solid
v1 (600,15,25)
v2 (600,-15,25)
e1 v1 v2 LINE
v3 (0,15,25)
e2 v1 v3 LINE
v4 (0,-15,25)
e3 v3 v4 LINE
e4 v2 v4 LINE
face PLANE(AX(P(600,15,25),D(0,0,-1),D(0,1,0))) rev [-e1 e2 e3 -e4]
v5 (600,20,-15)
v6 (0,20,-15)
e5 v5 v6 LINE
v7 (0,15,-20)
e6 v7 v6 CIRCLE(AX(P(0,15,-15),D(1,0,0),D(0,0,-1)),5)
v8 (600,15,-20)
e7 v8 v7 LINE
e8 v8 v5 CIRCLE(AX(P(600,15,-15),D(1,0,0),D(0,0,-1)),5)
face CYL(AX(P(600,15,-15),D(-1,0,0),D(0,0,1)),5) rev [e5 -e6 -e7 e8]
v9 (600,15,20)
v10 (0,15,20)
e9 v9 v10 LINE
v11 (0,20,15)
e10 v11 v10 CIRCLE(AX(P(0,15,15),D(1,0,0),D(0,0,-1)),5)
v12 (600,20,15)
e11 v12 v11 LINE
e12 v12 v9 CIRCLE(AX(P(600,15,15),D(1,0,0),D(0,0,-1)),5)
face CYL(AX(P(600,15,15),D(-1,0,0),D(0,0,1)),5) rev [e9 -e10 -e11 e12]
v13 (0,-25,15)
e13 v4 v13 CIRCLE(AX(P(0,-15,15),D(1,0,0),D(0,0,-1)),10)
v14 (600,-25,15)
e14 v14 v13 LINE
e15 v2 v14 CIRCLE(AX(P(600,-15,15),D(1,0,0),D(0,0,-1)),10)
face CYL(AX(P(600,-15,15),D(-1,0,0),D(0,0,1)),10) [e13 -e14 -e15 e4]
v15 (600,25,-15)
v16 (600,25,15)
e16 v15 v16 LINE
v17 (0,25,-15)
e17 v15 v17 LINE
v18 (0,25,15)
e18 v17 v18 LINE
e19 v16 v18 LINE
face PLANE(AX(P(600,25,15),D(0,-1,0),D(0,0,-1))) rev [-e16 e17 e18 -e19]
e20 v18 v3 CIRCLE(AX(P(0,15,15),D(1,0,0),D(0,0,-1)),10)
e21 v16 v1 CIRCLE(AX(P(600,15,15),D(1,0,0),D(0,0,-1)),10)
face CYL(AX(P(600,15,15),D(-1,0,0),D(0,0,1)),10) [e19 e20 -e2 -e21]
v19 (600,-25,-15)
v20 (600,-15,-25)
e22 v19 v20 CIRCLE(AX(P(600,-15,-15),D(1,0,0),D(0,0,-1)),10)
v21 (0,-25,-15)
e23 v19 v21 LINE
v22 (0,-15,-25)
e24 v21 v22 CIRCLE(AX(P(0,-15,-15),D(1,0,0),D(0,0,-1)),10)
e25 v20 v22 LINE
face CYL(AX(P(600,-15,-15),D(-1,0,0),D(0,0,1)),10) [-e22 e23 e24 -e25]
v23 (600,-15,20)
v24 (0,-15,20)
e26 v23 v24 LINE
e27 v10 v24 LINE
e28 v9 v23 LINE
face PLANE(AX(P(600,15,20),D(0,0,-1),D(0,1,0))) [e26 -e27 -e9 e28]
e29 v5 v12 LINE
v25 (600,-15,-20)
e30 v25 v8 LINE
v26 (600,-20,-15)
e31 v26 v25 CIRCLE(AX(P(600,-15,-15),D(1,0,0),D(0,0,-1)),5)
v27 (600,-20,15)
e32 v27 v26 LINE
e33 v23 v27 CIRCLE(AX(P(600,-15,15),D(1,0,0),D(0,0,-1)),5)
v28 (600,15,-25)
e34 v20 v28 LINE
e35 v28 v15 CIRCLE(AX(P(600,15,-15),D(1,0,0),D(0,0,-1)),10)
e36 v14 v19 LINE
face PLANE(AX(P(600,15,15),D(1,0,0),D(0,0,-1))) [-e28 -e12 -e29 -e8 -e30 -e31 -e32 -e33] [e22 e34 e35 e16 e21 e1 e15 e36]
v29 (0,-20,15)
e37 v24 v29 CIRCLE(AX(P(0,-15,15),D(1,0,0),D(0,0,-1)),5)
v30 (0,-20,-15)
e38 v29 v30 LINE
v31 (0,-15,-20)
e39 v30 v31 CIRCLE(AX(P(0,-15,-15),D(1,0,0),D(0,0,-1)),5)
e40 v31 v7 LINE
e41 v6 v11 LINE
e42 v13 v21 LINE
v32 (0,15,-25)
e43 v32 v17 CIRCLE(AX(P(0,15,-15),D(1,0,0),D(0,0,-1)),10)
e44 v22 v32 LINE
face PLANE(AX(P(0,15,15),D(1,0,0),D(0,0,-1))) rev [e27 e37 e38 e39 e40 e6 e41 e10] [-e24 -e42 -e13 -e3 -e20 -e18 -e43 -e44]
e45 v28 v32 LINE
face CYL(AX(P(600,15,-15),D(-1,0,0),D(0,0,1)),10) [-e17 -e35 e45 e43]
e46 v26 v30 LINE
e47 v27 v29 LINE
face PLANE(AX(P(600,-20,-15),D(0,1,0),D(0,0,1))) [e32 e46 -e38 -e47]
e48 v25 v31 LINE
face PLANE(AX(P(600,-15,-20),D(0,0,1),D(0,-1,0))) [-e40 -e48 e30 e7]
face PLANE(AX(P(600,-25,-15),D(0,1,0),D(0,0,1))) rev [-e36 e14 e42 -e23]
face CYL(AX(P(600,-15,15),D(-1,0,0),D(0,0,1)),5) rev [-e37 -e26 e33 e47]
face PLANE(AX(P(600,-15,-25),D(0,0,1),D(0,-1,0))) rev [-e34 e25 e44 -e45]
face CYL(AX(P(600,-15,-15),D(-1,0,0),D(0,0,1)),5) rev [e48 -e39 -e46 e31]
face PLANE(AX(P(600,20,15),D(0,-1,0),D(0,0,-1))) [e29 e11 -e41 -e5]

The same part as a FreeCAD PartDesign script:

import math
import FreeCAD as App
import Part
import Sketcher
from FreeCAD import Vector

doc = App.newDocument("Part")
body = doc.addObject("PartDesign::Body", "Body")

sketch1 = doc.addObject("Sketcher::SketchObject", "Sketch")
body.addObject(sketch1)
sketch1.AttachmentSupport = (doc.YZ_Plane, [""])
sketch1.MapMode = "FlatFace"
sketch1.addGeometry(Part.LineSegment(Vector(-15, -25, 0), Vector(15, -25, 0)), False)
sketch1.addGeometry(Part.ArcOfCircle(Part.Circle(Vector(15, -15, 0), Vector(0, 0, 1), 10), math.radians(-90), math.radians(0)), False)
sketch1.addGeometry(Part.LineSegment(Vector(25, -15, 0), Vector(25, 15, 0)), False)
sketch1.addGeometry(Part.ArcOfCircle(Part.Circle(Vector(15, 15, 0), Vector(0, 0, 1), 10), math.radians(0), math.radians(90)), False)
sketch1.addGeometry(Part.LineSegment(Vector(15, 25, 0), Vector(-15, 25, 0)), False)
sketch1.addGeometry(Part.ArcOfCircle(Part.Circle(Vector(-15, 15, 0), Vector(0, 0, 1), 10), math.radians(90), math.radians(180)), False)
sketch1.addGeometry(Part.LineSegment(Vector(-25, 15, 0), Vector(-25, -15, 0)), False)
sketch1.addGeometry(Part.ArcOfCircle(Part.Circle(Vector(-15, -15, 0), Vector(0, 0, 1), 10), math.radians(180), math.radians(270)), False)
sketch1.addGeometry(Part.LineSegment(Vector(15, -20, 0), Vector(-15, -20, 0)), False)
sketch1.addGeometry(Part.ArcOfCircle(Part.Circle(Vector(-15, -15, 0), Vector(0, 0, 1), 5), math.radians(180), math.radians(270)), False)
sketch1.addGeometry(Part.LineSegment(Vector(-20, -15, 0), Vector(-20, 15, 0)), False)
sketch1.addGeometry(Part.ArcOfCircle(Part.Circle(Vector(-15, 15, 0), Vector(0, 0, 1), 5), math.radians(90), math.radians(180)), False)
sketch1.addGeometry(Part.LineSegment(Vector(-15, 20, 0), Vector(15, 20, 0)), False)
sketch1.addGeometry(Part.ArcOfCircle(Part.Circle(Vector(15, 15, 0), Vector(0, 0, 1), 5), math.radians(0), math.radians(90)), False)
sketch1.addGeometry(Part.LineSegment(Vector(20, 15, 0), Vector(20, -15, 0)), False)
sketch1.addGeometry(Part.ArcOfCircle(Part.Circle(Vector(15, -15, 0), Vector(0, 0, 1), 5), math.radians(-90), math.radians(0)), False)
sketch1.addConstraint(Sketcher.Constraint("Tangent", 0, 2, 1, 1))
sketch1.addConstraint(Sketcher.Constraint("Tangent", 1, 2, 2, 1))
sketch1.addConstraint(Sketcher.Constraint("Tangent", 2, 2, 3, 1))
sketch1.addConstraint(Sketcher.Constraint("Tangent", 3, 2, 4, 1))
sketch1.addConstraint(Sketcher.Constraint("Tangent", 4, 2, 5, 1))
sketch1.addConstraint(Sketcher.Constraint("Tangent", 5, 2, 6, 1))
sketch1.addConstraint(Sketcher.Constraint("Tangent", 6, 2, 7, 1))
sketch1.addConstraint(Sketcher.Constraint("Tangent", 7, 2, 0, 1))
sketch1.addConstraint(Sketcher.Constraint("Tangent", 8, 2, 9, 2))
sketch1.addConstraint(Sketcher.Constraint("Tangent", 9, 1, 10, 1))
sketch1.addConstraint(Sketcher.Constraint("Tangent", 10, 2, 11, 2))
sketch1.addConstraint(Sketcher.Constraint("Tangent", 11, 1, 12, 1))
sketch1.addConstraint(Sketcher.Constraint("Tangent", 12, 2, 13, 2))
sketch1.addConstraint(Sketcher.Constraint("Tangent", 13, 1, 14, 1))
sketch1.addConstraint(Sketcher.Constraint("Tangent", 14, 2, 15, 2))
sketch1.addConstraint(Sketcher.Constraint("Tangent", 15, 1, 8, 1))
sketch1.addConstraint(Sketcher.Constraint("Horizontal", 0))
sketch1.addConstraint(Sketcher.Constraint("Vertical", 2))
sketch1.addConstraint(Sketcher.Constraint("Horizontal", 4))
sketch1.addConstraint(Sketcher.Constraint("Vertical", 6))
sketch1.addConstraint(Sketcher.Constraint("Horizontal", 8))
sketch1.addConstraint(Sketcher.Constraint("Vertical", 10))
sketch1.addConstraint(Sketcher.Constraint("Horizontal", 12))
sketch1.addConstraint(Sketcher.Constraint("Vertical", 14))
sketch1.addConstraint(Sketcher.Constraint("Coincident", 9, 3, 7, 3))
sketch1.addConstraint(Sketcher.Constraint("Coincident", 11, 3, 5, 3))
sketch1.addConstraint(Sketcher.Constraint("Coincident", 13, 3, 3, 3))
sketch1.addConstraint(Sketcher.Constraint("Equal", 1, 3))
sketch1.addConstraint(Sketcher.Constraint("Equal", 3, 5))
sketch1.addConstraint(Sketcher.Constraint("Equal", 5, 7))
sketch1.addConstraint(Sketcher.Constraint("Equal", 13, 15))
sketch1.addConstraint(Sketcher.Constraint("Symmetric", 1, 3, 5, 3, -1, 1))
sketch1.addConstraint(Sketcher.Constraint("Equal", 12, 2))
sketch1.addConstraint(Sketcher.Constraint("Radius", 1, 10.0))
sketch1.addConstraint(Sketcher.Constraint("Radius", 9, 5.0))
sketch1.addConstraint(Sketcher.Constraint("DistanceX", 0, 1, 0, 2, 30.0))
pad1 = doc.addObject("PartDesign::Pad", "Pad")
body.addObject(pad1)
pad1.Profile = sketch1
pad1.Length = 600

doc.recompute()
